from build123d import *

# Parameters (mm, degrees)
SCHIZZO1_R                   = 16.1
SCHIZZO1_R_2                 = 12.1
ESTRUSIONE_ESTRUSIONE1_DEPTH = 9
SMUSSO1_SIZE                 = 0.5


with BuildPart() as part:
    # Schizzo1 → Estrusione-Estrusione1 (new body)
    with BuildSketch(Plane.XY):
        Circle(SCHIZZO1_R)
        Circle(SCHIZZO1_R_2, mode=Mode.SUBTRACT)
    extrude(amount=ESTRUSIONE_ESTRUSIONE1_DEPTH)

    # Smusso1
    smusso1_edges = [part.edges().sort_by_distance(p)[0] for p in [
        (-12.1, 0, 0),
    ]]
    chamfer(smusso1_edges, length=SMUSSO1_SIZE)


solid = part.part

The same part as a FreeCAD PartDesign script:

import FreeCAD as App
import Part
import Sketcher

V = App.Vector
Q = App.Units.Quantity


def edges_at(feature, points):
    """Names of the edges that pass closest to the given points."""
    edges = feature.Shape.Edges
    near = lambda p: min(range(len(edges)), key=lambda i: edges[i].distToShape(Part.Vertex(*p))[0])
    return sorted({f"Edge{near(p) + 1}" for p in points})

doc = App.newDocument("Part")
body = doc.addObject("PartDesign::Body", "Body")

sketch1 = doc.addObject("Sketcher::SketchObject", "Sketch")
body.addObject(sketch1)
sketch1.AttachmentSupport = (doc.XY_Plane, [""])
sketch1.MapMode = "FlatFace"
sketch1.addGeometry([
    Part.Circle(V(0, 0, 0), V(0, 0, 1), 16),
    Part.Circle(V(0, 0, 0), V(0, 0, 1), 12),
], False)
sketch1.addConstraint([
    Sketcher.Constraint("Coincident", 0, 3, -1, 1),
    Sketcher.Constraint("Coincident", 1, 3, -1, 1),
    Sketcher.Constraint("Diameter", 0, Q("32.2 mm")),
    Sketcher.Constraint("Diameter", 1, Q("24.2 mm")),
])
pad1 = doc.addObject("PartDesign::Pad", "Pad")
body.addObject(pad1)
pad1.Profile = sketch1
pad1.Length = 9
doc.recompute()

chamfer = doc.addObject("PartDesign::Chamfer", "Chamfer")
body.addObject(chamfer)
chamfer.Base = (pad1, edges_at(pad1, [(-12.1, 0, 0)]))
chamfer.Size = 0.5

doc.recompute()
